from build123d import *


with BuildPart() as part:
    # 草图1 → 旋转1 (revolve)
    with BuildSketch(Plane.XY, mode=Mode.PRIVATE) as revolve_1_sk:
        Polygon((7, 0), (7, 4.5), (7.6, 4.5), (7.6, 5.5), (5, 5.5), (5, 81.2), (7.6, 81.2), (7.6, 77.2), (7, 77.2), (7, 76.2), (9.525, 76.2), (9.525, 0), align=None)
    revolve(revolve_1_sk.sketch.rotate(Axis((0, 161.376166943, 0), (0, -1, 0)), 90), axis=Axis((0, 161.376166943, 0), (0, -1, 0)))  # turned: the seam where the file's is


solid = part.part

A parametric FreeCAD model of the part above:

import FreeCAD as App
import Part
import Sketcher
from FreeCAD import Vector
Q = App.Units.Quantity

doc = App.newDocument("Part")
params = doc.addObject("Spreadsheet::Sheet", "Params")
for row, (alias, value) in enumerate([
    ("sketch1_height", "1 mm"),
    ("sketch1_height2", "4 mm"),
    ("sketch1_width", "0.6 mm"),
    ("sketch1_width2", "2.6 mm"),
    ("sketch1_height3", "4.5 mm"),
    ("revolution_angle", "360 deg"),
], start=1):
    params.set(f"A{row}", alias)
    params.set(f"B{row}", "=" + value)
    params.setAlias(f"B{row}", alias)

body = doc.addObject("PartDesign::Body", "Body")

# Sketch on XY plane
sketch1 = body.newObject("Sketcher::SketchObject", "Sketch")
sketch1.AttachmentSupport = (doc.getObject("XY_Plane"), [""])
sketch1.MapMode = "FlatFace"
sketch1.addGeometry(Part.LineSegment(Vector(7, 4.5, 0), Vector(7, 0, 0)), False)
sketch1.addGeometry(Part.LineSegment(Vector(7, 0, 0), Vector(9.5, 0, 0)), False)
sketch1.addGeometry(Part.LineSegment(Vector(9.5, 0, 0), Vector(9.5, 76.2, 0)), False)
sketch1.addGeometry(Part.LineSegment(Vector(9.5, 76.2, 0), Vector(7, 76.2, 0)), False)
sketch1.addGeometry(Part.LineSegment(Vector(7, 76.2, 0), Vector(7, 77.2, 0)), False)
sketch1.addGeometry(Part.LineSegment(Vector(7, 77.2, 0), Vector(7.6, 77.2, 0)), False)
sketch1.addGeometry(Part.LineSegment(Vector(7.6, 77.2, 0), Vector(7.6, 81.2, 0)), False)
sketch1.addGeometry(Part.LineSegment(Vector(7.6, 81.2, 0), Vector(5, 81.2, 0)), False)
sketch1.addGeometry(Part.LineSegment(Vector(5, 81.2, 0), Vector(5, 5.5, 0)), False)
sketch1.addGeometry(Part.LineSegment(Vector(5, 5.5, 0), Vector(7.6, 5.5, 0)), False)
sketch1.addGeometry(Part.LineSegment(Vector(7.6, 5.5, 0), Vector(7.6, 4.5, 0)), False)
sketch1.addGeometry(Part.LineSegment(Vector(7.6, 4.5, 0), Vector(7, 4.5, 0)), False)
sketch1.addConstraint(Sketcher.Constraint("Coincident", 0, 2, 1, 1))
sketch1.addConstraint(Sketcher.Constraint("Coincident", 1, 2, 2, 1))
sketch1.addConstraint(Sketcher.Constraint("Coincident", 2, 2, 3, 1))
sketch1.addConstraint(Sketcher.Constraint("Coincident", 3, 2, 4, 1))
sketch1.addConstraint(Sketcher.Constraint("Coincident", 4, 2, 5, 1))
sketch1.addConstraint(Sketcher.Constraint("Coincident", 5, 2, 6, 1))
sketch1.addConstraint(Sketcher.Constraint("Coincident", 6, 2, 7, 1))
sketch1.addConstraint(Sketcher.Constraint("Coincident", 7, 2, 8, 1))
sketch1.addConstraint(Sketcher.Constraint("Coincident", 8, 2, 9, 1))
sketch1.addConstraint(Sketcher.Constraint("Coincident", 9, 2, 10, 1))
sketch1.addConstraint(Sketcher.Constraint("Coincident", 10, 2, 11, 1))
sketch1.addConstraint(Sketcher.Constraint("Coincident", 11, 2, 0, 1))
sketch1.addConstraint(Sketcher.Constraint("Vertical", 0))
sketch1.addConstraint(Sketcher.Constraint("Horizontal", 1))
sketch1.addConstraint(Sketcher.Constraint("Vertical", 2))
sketch1.addConstraint(Sketcher.Constraint("Horizontal", 3))
sketch1.addConstraint(Sketcher.Constraint("Vertical", 4))
sketch1.addConstraint(Sketcher.Constraint("Horizontal", 5))
sketch1.addConstraint(Sketcher.Constraint("Vertical", 6))
sketch1.addConstraint(Sketcher.Constraint("Horizontal", 7))
sketch1.addConstraint(Sketcher.Constraint("Vertical", 8))
sketch1.addConstraint(Sketcher.Constraint("Horizontal", 9))
sketch1.addConstraint(Sketcher.Constraint("Vertical", 10))
sketch1.addConstraint(Sketcher.Constraint("Horizontal", 11))
sketch1.addConstraint(Sketcher.Constraint("PointOnObject", 0, 2, -1))
sketch1.addConstraint(Sketcher.Constraint("Vertical", 0, 2, 3, 2))
sketch1.addConstraint(Sketcher.Constraint("Vertical", 6, 2, 9, 2))
sketch1.addConstraint(Sketcher.Constraint("Equal", 4, 10))
sketch1.addConstraint(Sketcher.Constraint("DistanceY", 4, 1, 4, 2, Q("1 mm")))
sketch1.addConstraint(Sketcher.Constraint("DistanceY", 6, 1, 6, 2, Q("4 mm")))
sketch1.addConstraint(Sketcher.Constraint("DistanceX", 5, 1, 5, 2, Q("0.6 mm")))
sketch1.addConstraint(Sketcher.Constraint("DistanceX", 7, 2, 7, 1, Q("2.6 mm")))
sketch1.addConstraint(Sketcher.Constraint("DistanceY", 0, 2, 0, 1, Q("4.5 mm")))
sketch1.addConstraint(Sketcher.Constraint("DistanceY", 2, 1, 2, 2, Q("76.2 mm")))
sketch1.addConstraint(Sketcher.Constraint("DistanceX", -1, 1, 0, 2, Q("7 mm")))
sketch1.addConstraint(Sketcher.Constraint("DistanceX", 1, 1, 1, 2, Q("2.525 mm")))
sketch1.setExpression("Constraints[28]", "Params.sketch1_height")
sketch1.setExpression("Constraints[29]", "Params.sketch1_height2")
sketch1.setExpression("Constraints[30]", "Params.sketch1_width")
sketch1.setExpression("Constraints[31]", "Params.sketch1_width2")
sketch1.setExpression("Constraints[32]", "Params.sketch1_height3")
revolution = body.newObject("PartDesign::Revolution", "Revolution")
revolution.Profile = sketch1
revolution.ReferenceAxis = (sketch1, ["V_Axis"])
revolution.setExpression("Angle", "Params.revolution_angle")

doc.recompute()
